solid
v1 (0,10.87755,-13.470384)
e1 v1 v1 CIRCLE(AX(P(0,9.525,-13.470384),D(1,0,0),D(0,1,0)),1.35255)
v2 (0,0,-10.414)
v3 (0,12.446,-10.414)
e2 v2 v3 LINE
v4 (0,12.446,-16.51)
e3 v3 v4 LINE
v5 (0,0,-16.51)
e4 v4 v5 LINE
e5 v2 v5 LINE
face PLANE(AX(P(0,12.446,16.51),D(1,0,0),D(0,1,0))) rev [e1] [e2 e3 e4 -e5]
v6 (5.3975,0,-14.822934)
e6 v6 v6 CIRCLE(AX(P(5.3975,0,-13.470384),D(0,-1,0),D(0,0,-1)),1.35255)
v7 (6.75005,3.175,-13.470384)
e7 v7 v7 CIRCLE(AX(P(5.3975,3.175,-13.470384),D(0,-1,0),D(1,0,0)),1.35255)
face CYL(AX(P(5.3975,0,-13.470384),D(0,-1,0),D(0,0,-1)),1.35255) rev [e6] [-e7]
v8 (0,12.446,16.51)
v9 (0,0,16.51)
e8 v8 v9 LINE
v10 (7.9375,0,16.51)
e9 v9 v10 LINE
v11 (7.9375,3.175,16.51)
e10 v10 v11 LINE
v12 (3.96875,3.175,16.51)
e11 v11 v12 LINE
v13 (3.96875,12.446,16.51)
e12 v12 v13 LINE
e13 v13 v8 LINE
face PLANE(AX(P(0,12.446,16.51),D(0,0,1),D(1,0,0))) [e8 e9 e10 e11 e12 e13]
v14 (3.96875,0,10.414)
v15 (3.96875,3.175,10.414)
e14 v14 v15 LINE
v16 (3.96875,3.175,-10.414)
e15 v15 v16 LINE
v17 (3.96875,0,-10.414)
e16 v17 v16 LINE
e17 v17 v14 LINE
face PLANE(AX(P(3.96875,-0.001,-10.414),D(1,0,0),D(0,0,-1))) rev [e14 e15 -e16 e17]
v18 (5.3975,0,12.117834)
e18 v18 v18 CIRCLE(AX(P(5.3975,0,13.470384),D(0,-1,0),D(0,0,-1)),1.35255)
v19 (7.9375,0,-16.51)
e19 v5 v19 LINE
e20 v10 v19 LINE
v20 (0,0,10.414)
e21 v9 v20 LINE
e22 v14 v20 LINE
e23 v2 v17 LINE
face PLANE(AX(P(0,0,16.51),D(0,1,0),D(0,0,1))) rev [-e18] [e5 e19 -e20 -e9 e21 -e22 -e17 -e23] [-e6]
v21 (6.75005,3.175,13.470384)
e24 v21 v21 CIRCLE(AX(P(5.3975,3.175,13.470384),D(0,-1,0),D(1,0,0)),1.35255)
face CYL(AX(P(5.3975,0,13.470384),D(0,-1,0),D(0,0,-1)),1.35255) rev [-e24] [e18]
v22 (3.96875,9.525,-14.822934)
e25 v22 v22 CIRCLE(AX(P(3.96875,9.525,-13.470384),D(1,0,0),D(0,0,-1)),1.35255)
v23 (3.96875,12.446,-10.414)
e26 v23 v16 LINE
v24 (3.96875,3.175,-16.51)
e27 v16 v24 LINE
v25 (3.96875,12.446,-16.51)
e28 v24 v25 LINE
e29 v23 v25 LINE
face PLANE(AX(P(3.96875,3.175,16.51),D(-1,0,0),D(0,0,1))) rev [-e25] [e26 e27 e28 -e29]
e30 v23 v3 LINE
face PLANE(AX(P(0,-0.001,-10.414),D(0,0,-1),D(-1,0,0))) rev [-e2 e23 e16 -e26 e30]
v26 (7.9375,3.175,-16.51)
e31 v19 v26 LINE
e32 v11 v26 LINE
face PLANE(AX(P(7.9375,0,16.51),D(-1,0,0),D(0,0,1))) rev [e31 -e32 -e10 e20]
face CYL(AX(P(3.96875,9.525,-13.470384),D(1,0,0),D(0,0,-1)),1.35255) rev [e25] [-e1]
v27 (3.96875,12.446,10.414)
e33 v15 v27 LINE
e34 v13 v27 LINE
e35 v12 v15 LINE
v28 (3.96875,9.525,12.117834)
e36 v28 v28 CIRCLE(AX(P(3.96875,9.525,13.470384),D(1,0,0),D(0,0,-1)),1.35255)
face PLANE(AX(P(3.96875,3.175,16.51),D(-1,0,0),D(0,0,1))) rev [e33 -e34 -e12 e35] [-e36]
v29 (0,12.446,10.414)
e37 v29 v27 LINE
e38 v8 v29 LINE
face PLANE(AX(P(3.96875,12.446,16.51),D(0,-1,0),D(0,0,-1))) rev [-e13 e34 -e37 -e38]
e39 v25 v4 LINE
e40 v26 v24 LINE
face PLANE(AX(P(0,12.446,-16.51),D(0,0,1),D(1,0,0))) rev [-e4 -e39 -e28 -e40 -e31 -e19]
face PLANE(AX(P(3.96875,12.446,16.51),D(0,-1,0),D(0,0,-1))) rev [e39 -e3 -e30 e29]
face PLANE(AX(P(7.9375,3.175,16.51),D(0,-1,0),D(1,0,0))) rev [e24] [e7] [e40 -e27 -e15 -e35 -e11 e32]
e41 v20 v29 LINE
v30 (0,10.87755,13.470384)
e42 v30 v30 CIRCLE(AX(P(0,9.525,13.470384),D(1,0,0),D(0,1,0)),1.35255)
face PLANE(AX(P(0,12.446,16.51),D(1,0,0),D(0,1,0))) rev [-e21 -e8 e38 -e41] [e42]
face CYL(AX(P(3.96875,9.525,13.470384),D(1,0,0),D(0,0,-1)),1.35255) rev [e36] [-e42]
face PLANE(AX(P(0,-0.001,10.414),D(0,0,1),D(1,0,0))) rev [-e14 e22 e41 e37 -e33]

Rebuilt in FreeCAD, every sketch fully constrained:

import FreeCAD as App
import Part
import Sketcher
Q = App.Units.Quantity


def add_polygon(sketch, points):
    """Adds a closed chain of lines whose ends are joined by coincident constraints."""
    first, n = sketch.GeometryCount, len(points)
    for a, b in zip(points, points[1:] + points[:1]):
        sketch.addGeometry(Part.LineSegment(App.Vector(*a, 0), App.Vector(*b, 0)), False)
    for i in range(n):
        sketch.addConstraint(Sketcher.Constraint("Coincident", first + i, 2, first + (i + 1) % n, 1))

doc = App.newDocument("Part")
body = doc.addObject("PartDesign::Body", "Body")

# Sketch on XY plane
sketch1 = body.newObject("Sketcher::SketchObject", "Sketch")
sketch1.AttachmentSupport = (doc.getObject("XY_Plane"), [""])
sketch1.MapMode = "FlatFace"
add_polygon(sketch1, [(0, 12.446), (0, 0), (7.9375, 0), (7.9375, 3.175), (3.96875, 3.175), (3.96875, 12.446)])  # lines 0-5
sketch1.addConstraint(Sketcher.Constraint("Vertical", 0))
sketch1.addConstraint(Sketcher.Constraint("Horizontal", 1))
sketch1.addConstraint(Sketcher.Constraint("Vertical", 2))
sketch1.addConstraint(Sketcher.Constraint("Horizontal", 3))
sketch1.addConstraint(Sketcher.Constraint("Vertical", 4))
sketch1.addConstraint(Sketcher.Constraint("Horizontal", 5))
sketch1.addConstraint(Sketcher.Constraint("Coincident", 0, 2, -1, 1))
sketch1.addConstraint(Sketcher.Constraint("Equal", 3, 5))
sketch1.addConstraint(Sketcher.Constraint("DistanceY", 0, 2, 0, 1, Q("0.49 in")))
sketch1.addConstraint(Sketcher.Constraint("DistanceX", 1, 1, 1, 2, Q("0.3125 in")))
sketch1.addConstraint(Sketcher.Constraint("DistanceY", 2, 1, 2, 2, Q("0.125 in")))
pad1 = body.newObject("PartDesign::Pad", "Pad")
pad1.Profile = sketch1
pad1.Length = Q("1.3 in")
pad1.Midplane = True

# Sketch on XZ plane
sketch2 = body.newObject("Sketcher::SketchObject", "Sketch001")
sketch2.AttachmentSupport = (doc.getObject("XZ_Plane"), [""])
sketch2.MapMode = "FlatFace"
sketch2.AttachmentOffset = App.Placement(App.Vector(0, 0, -0.49 * 25.4), App.Rotation())
add_polygon(sketch2, [(0, -10.414), (0, 10.414), (3.96875, 10.414), (3.96875, -10.414)])  # lines 0-3
sketch2.addConstraint(Sketcher.Constraint("Vertical", 0))
sketch2.addConstraint(Sketcher.Constraint("Horizontal", 1))
sketch2.addConstraint(Sketcher.Constraint("Vertical", 2))
sketch2.addConstraint(Sketcher.Constraint("Horizontal", 3))
sketch2.addConstraint(Sketcher.Constraint("Symmetric", 0, 2, 3, 2, -1, 1))
sketch2.addConstraint(Sketcher.Constraint("DistanceY", 0, 1, 0, 2, Q("0.82 in")))
sketch2.addConstraint(Sketcher.Constraint("DistanceX", 1, 1, 1, 2, Q("0.15625 in")))
pocket1 = body.newObject("PartDesign::Pocket", "Pocket")
pocket1.Profile = sketch2
pocket1.Type = "UpToFirst"
pocket1.Reversed = True

# Sketch on YZ plane
sketch3 = body.newObject("Sketcher::SketchObject", "Sketch002")
sketch3.AttachmentSupport = (doc.getObject("YZ_Plane"), [""])
sketch3.MapMode = "FlatFace"
sketch3.AttachmentOffset = App.Placement(App.Vector(0, 0, 0.15625 * 25.4), App.Rotation())
sketch3.addGeometry(Part.Circle(App.Vector(9.525, 13.470384, 0), App.Vector(0, 0, 1), 1.35255), False)
sketch3.addGeometry(Part.Circle(App.Vector(9.525, -13.470384, 0), App.Vector(0, 0, 1), 1.35255), False)
sketch3.addConstraint(Sketcher.Constraint("Equal", 0, 1))
sketch3.addConstraint(Sketcher.Constraint("Symmetric", 0, 3, 1, 3, -1))
sketch3.addConstraint(Sketcher.Constraint("Diameter", 0, Q("0.1065 in")))
sketch3.addConstraint(Sketcher.Constraint("DistanceX", -1, 1, 0, 3, Q("0.375 in")))
sketch3.addConstraint(Sketcher.Constraint("DistanceY", 1, 3, 0, 3, 26.940768))
doc.recompute()
hole = body.newObject("PartDesign::Hole", "Hole")
hole.Profile = sketch3
hole.ThreadType = "None"
hole.Diameter = Q("0.1065 in")
hole.DepthType = "Dimension"
hole.Depth = Q("0.15625 in")
hole.DrillPoint = "Flat"

# Sketch on XZ plane
sketch4 = body.newObject("Sketcher::SketchObject", "Sketch003")
sketch4.AttachmentSupport = (doc.getObject("XZ_Plane"), [""])
sketch4.MapMode = "FlatFace"
sketch4.addGeometry(Part.Circle(App.Vector(5.3975, 13.470384, 0), App.Vector(0, 0, 1), 1.35255), False)
sketch4.addGeometry(Part.Circle(App.Vector(5.3975, -13.470384, 0), App.Vector(0, 0, 1), 1.35255), False)
sketch4.addConstraint(Sketcher.Constraint("Equal", 0, 1))
sketch4.addConstraint(Sketcher.Constraint("Symmetric", 0, 3, 1, 3, -1))
sketch4.addConstraint(Sketcher.Constraint("Diameter", 0, Q("0.1065 in")))
sketch4.addConstraint(Sketcher.Constraint("DistanceX", -1, 1, 0, 3, Q("0.2125 in")))
sketch4.addConstraint(Sketcher.Constraint("DistanceY", 1, 3, 0, 3, 26.940768))
doc.recompute()
hole2 = body.newObject("PartDesign::Hole", "Hole001")
hole2.Profile = sketch4
hole2.ThreadType = "None"
hole2.Diameter = Q("0.1065 in")
hole2.DepthType = "Dimension"
hole2.Depth = Q("0.125 in")
hole2.DrillPoint = "Flat"

doc.recompute()
